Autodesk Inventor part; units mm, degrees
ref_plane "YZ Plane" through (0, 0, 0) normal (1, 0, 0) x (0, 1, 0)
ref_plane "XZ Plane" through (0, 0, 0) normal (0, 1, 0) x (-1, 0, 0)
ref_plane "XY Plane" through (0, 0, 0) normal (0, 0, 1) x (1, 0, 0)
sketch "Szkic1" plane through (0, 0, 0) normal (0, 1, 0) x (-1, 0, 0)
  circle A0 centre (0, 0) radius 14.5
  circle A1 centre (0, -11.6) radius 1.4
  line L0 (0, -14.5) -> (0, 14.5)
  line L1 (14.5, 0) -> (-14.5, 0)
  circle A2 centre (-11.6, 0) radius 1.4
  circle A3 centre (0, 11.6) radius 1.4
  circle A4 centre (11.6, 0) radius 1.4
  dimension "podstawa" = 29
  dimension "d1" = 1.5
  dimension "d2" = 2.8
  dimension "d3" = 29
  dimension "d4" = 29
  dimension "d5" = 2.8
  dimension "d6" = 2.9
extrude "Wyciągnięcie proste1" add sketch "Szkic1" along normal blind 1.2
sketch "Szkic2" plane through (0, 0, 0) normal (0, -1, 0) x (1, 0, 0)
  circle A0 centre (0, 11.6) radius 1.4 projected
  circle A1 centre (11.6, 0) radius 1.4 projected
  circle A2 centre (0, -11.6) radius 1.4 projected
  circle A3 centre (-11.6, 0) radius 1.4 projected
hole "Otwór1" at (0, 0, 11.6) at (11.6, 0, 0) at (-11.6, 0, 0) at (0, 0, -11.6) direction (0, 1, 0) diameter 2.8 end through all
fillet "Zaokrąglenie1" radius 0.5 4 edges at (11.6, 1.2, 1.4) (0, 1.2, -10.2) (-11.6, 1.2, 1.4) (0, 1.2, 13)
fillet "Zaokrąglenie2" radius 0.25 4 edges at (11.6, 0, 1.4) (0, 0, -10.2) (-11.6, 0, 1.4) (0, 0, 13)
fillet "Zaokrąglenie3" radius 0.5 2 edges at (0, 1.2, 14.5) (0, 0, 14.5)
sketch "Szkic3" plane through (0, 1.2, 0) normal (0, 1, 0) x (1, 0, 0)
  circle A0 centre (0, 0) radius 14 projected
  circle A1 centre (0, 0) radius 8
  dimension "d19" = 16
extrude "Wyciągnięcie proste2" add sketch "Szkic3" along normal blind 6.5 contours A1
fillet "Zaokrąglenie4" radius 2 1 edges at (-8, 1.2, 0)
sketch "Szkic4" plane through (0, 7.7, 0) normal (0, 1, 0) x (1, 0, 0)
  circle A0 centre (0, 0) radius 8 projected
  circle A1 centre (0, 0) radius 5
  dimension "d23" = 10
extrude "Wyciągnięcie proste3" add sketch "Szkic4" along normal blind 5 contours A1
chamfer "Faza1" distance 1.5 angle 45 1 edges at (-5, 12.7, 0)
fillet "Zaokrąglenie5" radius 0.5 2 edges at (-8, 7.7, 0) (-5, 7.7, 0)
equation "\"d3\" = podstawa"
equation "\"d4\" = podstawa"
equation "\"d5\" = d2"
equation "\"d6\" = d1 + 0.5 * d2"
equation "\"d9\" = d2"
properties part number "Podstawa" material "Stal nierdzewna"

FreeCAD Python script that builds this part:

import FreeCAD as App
import Part
import Sketcher


def edges_at(feature, points):
    """Names of the edges that pass closest to the given points."""
    edges = feature.Shape.Edges
    near = lambda p: min(range(len(edges)), key=lambda i: edges[i].distToShape(Part.Vertex(*p))[0])
    return sorted({f"Edge{near(p) + 1}" for p in points})

doc = App.newDocument("Part")
body = doc.addObject("PartDesign::Body", "Body")

# Sketch on XZ plane
sketch1 = doc.addObject("Sketcher::SketchObject", "Sketch")
body.addObject(sketch1)
sketch1.AttachmentSupport = (doc.XZ_Plane, [""])
sketch1.MapMode = "FlatFace"
sketch1.addGeometry(Part.Circle(App.Vector(0, 0, 0), App.Vector(0, 0, 1), 14), False)
sketch1.addConstraint(Sketcher.Constraint("Coincident", 0, 3, -1, 1))
sketch1.addConstraint(Sketcher.Constraint("Diameter", 0, 29.0))
pad1 = doc.addObject("PartDesign::Pad", "Pad")
body.addObject(pad1)
pad1.Profile = sketch1
pad1.Length = 1.2
pad1.Reversed = True

# Sketch on XZ plane
sketch2 = doc.addObject("Sketcher::SketchObject", "Sketch001")
body.addObject(sketch2)
sketch2.AttachmentSupport = (doc.XZ_Plane, [""])
sketch2.MapMode = "FlatFace"
sketch2.addGeometry(Part.Circle(App.Vector(0, 11.6, 0), App.Vector(0, 0, 1), 1.4), False)
sketch2.addGeometry(Part.Circle(App.Vector(11.6, 0, 0), App.Vector(0, 0, 1), 1.4), False)
sketch2.addGeometry(Part.Circle(App.Vector(-11.6, 0, 0), App.Vector(0, 0, 1), 1.4), False)
sketch2.addGeometry(Part.Circle(App.Vector(0, -11.6, 0), App.Vector(0, 0, 1), 1.4), False)
sketch2.addConstraint(Sketcher.Constraint("Equal", 0, 1))
sketch2.addConstraint(Sketcher.Constraint("Equal", 1, 2))
sketch2.addConstraint(Sketcher.Constraint("Equal", 2, 3))
sketch2.addConstraint(Sketcher.Constraint("Symmetric", 1, 3, 2, 3, -1, 1))
sketch2.addConstraint(Sketcher.Constraint("Symmetric", 0, 3, 3, 3, -1, 1))
sketch2.addConstraint(Sketcher.Constraint("PointOnObject", 0, 3, -2))
sketch2.addConstraint(Sketcher.Constraint("PointOnObject", 1, 3, -1))
sketch2.addConstraint(Sketcher.Constraint("Diameter", 0, 2.8))
sketch2.addConstraint(Sketcher.Constraint("DistanceY", -1, 1, 0, 3, 11.6))
sketch2.addConstraint(Sketcher.Constraint("DistanceX", -1, 1, 1, 3, 11.6))
doc.recompute()
hole = doc.addObject("PartDesign::Hole", "Hole")
body.addObject(hole)
hole.Profile = sketch2
hole.ThreadType = "None"
hole.Diameter = 2.8
hole.DepthType = "ThroughAll"
doc.recompute()

fillet = doc.addObject("PartDesign::Fillet", "Fillet")
body.addObject(fillet)
fillet.Base = (hole, edges_at(hole, [
    (11.6, 1.2, 1.4),
    (0, 1.2, -10.2),
    (-11.6, 1.2, 1.4),
    (0, 1.2, 13),
]))
fillet.Radius = 0.5
doc.recompute()

fillet2 = doc.addObject("PartDesign::Fillet", "Fillet001")
body.addObject(fillet2)
fillet2.Base = (fillet, edges_at(fillet, [
    (11.6, 0, 1.4),
    (0, 0, -10.2),
    (-11.6, 0, 1.4),
    (0, 0, 13),
]))
fillet2.Radius = 0.25
doc.recompute()

fillet3 = doc.addObject("PartDesign::Fillet", "Fillet002")
body.addObject(fillet3)
fillet3.Base = (fillet2, edges_at(fillet2, [(0, 1.2, 14.5), (0, 0, 14.5)]))
fillet3.Radius = 0.5

# Sketch on XZ plane
sketch3 = doc.addObject("Sketcher::SketchObject", "Sketch002")
body.addObject(sketch3)
sketch3.AttachmentSupport = (doc.XZ_Plane, [""])
sketch3.MapMode = "FlatFace"
sketch3.AttachmentOffset = App.Placement(App.Vector(0, 0, -1.2), App.Rotation())
sketch3.addGeometry(Part.Circle(App.Vector(0, 0, 0), App.Vector(0, 0, 1), 8), False)
sketch3.addConstraint(Sketcher.Constraint("Coincident", 0, 3, -1, 1))
sketch3.addConstraint(Sketcher.Constraint("Diameter", 0, 16.0))
pad2 = doc.addObject("PartDesign::Pad", "Pad001")
body.addObject(pad2)
pad2.Profile = sketch3
pad2.Length = 6.5
pad2.Reversed = True
doc.recompute()

fillet4 = doc.addObject("PartDesign::Fillet", "Fillet003")
body.addObject(fillet4)
fillet4.Base = (pad2, edges_at(pad2, [(-8, 1.2, 0)]))
fillet4.Radius = 2

# Sketch on XZ plane
sketch4 = doc.addObject("Sketcher::SketchObject", "Sketch003")
body.addObject(sketch4)
sketch4.AttachmentSupport = (doc.XZ_Plane, [""])
sketch4.MapMode = "FlatFace"
sketch4.AttachmentOffset = App.Placement(App.Vector(0, 0, -7.7), App.Rotation())
sketch4.addGeometry(Part.Circle(App.Vector(0, 0, 0), App.Vector(0, 0, 1), 5), False)
sketch4.addConstraint(Sketcher.Constraint("Coincident", 0, 3, -1, 1))
sketch4.addConstraint(Sketcher.Constraint("Diameter", 0, 10.0))
pad3 = doc.addObject("PartDesign::Pad", "Pad002")
body.addObject(pad3)
pad3.Profile = sketch4
pad3.Length = 5
pad3.Reversed = True
doc.recompute()

chamfer = doc.addObject("PartDesign::Chamfer", "Chamfer")
body.addObject(chamfer)
chamfer.Base = (pad3, edges_at(pad3, [(-5, 12.7, 0)]))
chamfer.Size = 1.5
doc.recompute()

fillet5 = doc.addObject("PartDesign::Fillet", "Fillet004")
body.addObject(fillet5)
fillet5.Base = (chamfer, edges_at(chamfer, [(-8, 7.7, 0), (-5, 7.7, 0)]))
fillet5.Radius = 0.5

doc.recompute()
